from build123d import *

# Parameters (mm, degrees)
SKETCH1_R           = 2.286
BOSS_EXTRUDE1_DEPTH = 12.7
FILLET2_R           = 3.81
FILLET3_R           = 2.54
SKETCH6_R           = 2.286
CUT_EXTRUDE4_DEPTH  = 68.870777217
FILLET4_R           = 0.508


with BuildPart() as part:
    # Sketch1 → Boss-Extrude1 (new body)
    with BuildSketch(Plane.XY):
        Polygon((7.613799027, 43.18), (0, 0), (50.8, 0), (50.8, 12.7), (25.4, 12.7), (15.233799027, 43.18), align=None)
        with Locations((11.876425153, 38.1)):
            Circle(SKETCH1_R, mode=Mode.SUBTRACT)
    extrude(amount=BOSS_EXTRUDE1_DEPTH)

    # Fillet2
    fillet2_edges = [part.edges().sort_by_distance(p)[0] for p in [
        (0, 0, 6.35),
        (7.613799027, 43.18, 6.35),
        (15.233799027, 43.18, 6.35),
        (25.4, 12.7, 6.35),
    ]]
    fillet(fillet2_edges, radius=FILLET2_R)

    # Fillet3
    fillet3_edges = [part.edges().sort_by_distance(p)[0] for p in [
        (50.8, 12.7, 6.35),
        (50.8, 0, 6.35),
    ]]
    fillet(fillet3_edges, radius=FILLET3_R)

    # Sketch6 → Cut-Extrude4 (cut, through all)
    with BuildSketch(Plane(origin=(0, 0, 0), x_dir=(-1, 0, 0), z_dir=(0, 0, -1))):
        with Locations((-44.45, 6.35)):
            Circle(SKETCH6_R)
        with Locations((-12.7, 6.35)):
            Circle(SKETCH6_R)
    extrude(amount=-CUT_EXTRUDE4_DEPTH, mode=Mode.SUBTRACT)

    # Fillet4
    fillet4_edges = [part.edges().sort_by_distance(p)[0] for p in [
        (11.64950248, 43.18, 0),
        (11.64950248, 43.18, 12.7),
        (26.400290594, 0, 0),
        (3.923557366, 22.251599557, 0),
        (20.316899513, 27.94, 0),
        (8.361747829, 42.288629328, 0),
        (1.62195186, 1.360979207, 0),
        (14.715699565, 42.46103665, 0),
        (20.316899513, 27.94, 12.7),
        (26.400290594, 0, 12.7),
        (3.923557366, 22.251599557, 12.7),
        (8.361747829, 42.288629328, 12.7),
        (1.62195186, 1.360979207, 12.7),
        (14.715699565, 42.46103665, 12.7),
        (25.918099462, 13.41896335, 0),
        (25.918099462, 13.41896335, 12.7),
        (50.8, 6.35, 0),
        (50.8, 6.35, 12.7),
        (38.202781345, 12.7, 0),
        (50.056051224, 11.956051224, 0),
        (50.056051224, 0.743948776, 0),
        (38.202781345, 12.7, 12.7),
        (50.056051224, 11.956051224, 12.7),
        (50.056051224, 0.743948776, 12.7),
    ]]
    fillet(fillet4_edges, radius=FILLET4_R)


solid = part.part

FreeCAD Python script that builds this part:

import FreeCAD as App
import Part
import Sketcher
Q = App.Units.Quantity


def edges_at(feature, points):
    """Names of the edges that pass closest to the given points."""
    edges = feature.Shape.Edges
    near = lambda p: min(range(len(edges)), key=lambda i: edges[i].distToShape(Part.Vertex(*p))[0])
    return sorted({f"Edge{near(p) + 1}" for p in points})


def add_polygon(sketch, points):
    """Adds a closed chain of lines whose ends are joined by coincident constraints."""
    first, n = sketch.GeometryCount, len(points)
    for a, b in zip(points, points[1:] + points[:1]):
        sketch.addGeometry(Part.LineSegment(App.Vector(*a, 0), App.Vector(*b, 0)), False)
    for i in range(n):
        sketch.addConstraint(Sketcher.Constraint("Coincident", first + i, 2, first + (i + 1) % n, 1))

doc = App.newDocument("Part")
params = doc.addObject("Spreadsheet::Sheet", "Params")
for row, (alias, value) in enumerate([
    ("sketch1_diameter", "0.18 in"),
    ("sketch1_width", "2 in"),
    ("sketch1_width2", "1 in"),
    ("sketch1_width3", "0.3 in"),
    ("sketch1_height", "0.5 in"),
    ("pad1_length", "0.5 in"),
    ("fillet_radius", "0.15 in"),
    ("fillet2_radius", "0.1 in"),
    ("sketch2_diameter", "0.18 in"),
    ("fillet3_radius", "0.02 in"),
], start=1):
    params.set(f"A{row}", alias)
    params.set(f"B{row}", "=" + value)
    params.setAlias(f"B{row}", alias)

body = doc.addObject("PartDesign::Body", "Body")

sketch1 = body.newObject("Sketcher::SketchObject", "Sketch")
sketch1.AttachmentSupport = (doc.getObject("XY_Plane"), [""])
sketch1.MapMode = "FlatFace"
add_polygon(sketch1, [(7.6, 43.2), (0, 0), (50.8, 0), (50.8, 12.7), (25.4, 12.7), (15.2, 43.2)])
sketch1.addGeometry(Part.Circle(App.Vector(11.9, 38.1, 0), App.Vector(0, 0, 1), 2.3), False)
sketch1.addConstraint([
    Sketcher.Constraint("Horizontal", 1),
    Sketcher.Constraint("Vertical", 2),
    Sketcher.Constraint("Horizontal", 3),
    Sketcher.Constraint("Horizontal", 5),
    Sketcher.Constraint("Coincident", 0, 2, -1, 1),
    Sketcher.Constraint("Diameter", 6, Q("0.18 in")),
    Sketcher.Constraint("DistanceX", 1, 1, 1, 2, Q("2 in")),
    Sketcher.Constraint("DistanceX", 3, 2, 3, 1, Q("1 in")),
    Sketcher.Constraint("DistanceX", 5, 2, 5, 1, Q("0.3 in")),
    Sketcher.Constraint("DistanceY", 2, 1, 2, 2, Q("0.5 in")),
    Sketcher.Constraint("Angle", 0, Q("-100 deg")),
    Sketcher.Constraint("DistanceY", 2, 2, 6, 3, Q("1 in")),
    Sketcher.Constraint("DistanceY", -1, 1, 4, 2, Q("1.7 in")),
    Sketcher.Constraint("DistanceX", -1, 1, 6, 3, Q("11.876425 mm")),
])
sketch1.setExpression("Constraints[11]", "Params.sketch1_diameter")
sketch1.setExpression("Constraints[12]", "Params.sketch1_width")
sketch1.setExpression("Constraints[13]", "Params.sketch1_width2")
sketch1.setExpression("Constraints[14]", "Params.sketch1_width3")
sketch1.setExpression("Constraints[15]", "Params.sketch1_height")
pad1 = body.newObject("PartDesign::Pad", "Pad")
pad1.Profile = sketch1
pad1.setExpression("Length", "Params.pad1_length")
doc.recompute()

fillet = body.newObject("PartDesign::Fillet", "Fillet")
fillet.Base = (pad1, edges_at(pad1, [
    (0, 0, 6.35),
    (7.614, 43.18, 6.35),
    (15.234, 43.18, 6.35),
    (25.4, 12.7, 6.35),
]))
fillet.setExpression("Radius", "Params.fillet_radius")
doc.recompute()

fillet2 = body.newObject("PartDesign::Fillet", "Fillet001")
fillet2.Base = (fillet, edges_at(fillet, [(50.8, 12.7, 6.35), (50.8, 0, 6.35)]))
fillet2.setExpression("Radius", "Params.fillet2_radius")

sketch2 = body.newObject("Sketcher::SketchObject", "Sketch001")
sketch2.AttachmentSupport = (doc.getObject("XY_Plane"), [""])
sketch2.MapMode = "FlatFace"
sketch2.addGeometry([
    Part.Circle(App.Vector(44.5, 6.3, 0), App.Vector(0, 0, 1), 2.3),
    Part.Circle(App.Vector(12.7, 6.3, 0), App.Vector(0, 0, 1), 2.3),
], False)
sketch2.addConstraint([
    Sketcher.Constraint("Equal", 0, 1),
    Sketcher.Constraint("Horizontal", 0, 3, 1, 3),
    Sketcher.Constraint("Diameter", 0, Q("0.18 in")),
    Sketcher.Constraint("DistanceX", -1, 1, 1, 3, Q("0.5 in")),
    Sketcher.Constraint("DistanceX", -1, 1, 0, 3, Q("1.75 in")),
    Sketcher.Constraint("DistanceY", -1, 1, 0, 3, Q("0.25 in")),
])
sketch2.setExpression("Constraints[2]", "Params.sketch2_diameter")
pocket1 = body.newObject("PartDesign::Pocket", "Pocket")
pocket1.Profile = sketch2
pocket1.Type = "ThroughAll"
pocket1.Reversed = True
doc.recompute()

fillet3 = body.newObject("PartDesign::Fillet", "Fillet002")
fillet3.Base = (pocket1, edges_at(pocket1, [
    (11.65, 43.18, 0),
    (11.65, 43.18, 12.7),
    (26.4, 0, 0),
    (3.924, 22.252, 0),
    (20.317, 27.94, 0),
    (8.362, 42.289, 0),
    (1.622, 1.361, 0),
    (14.716, 42.461, 0),
    (20.317, 27.94, 12.7),
    (26.4, 0, 12.7),
    (3.924, 22.252, 12.7),
    (8.362, 42.289, 12.7),
    (1.622, 1.361, 12.7),
    (14.716, 42.461, 12.7),
    (25.918, 13.419, 0),
    (25.918, 13.419, 12.7),
    (50.8, 6.35, 0),
    (50.8, 6.35, 12.7),
    (38.203, 12.7, 0),
    (50.056, 11.956, 0),
    (50.056, 0.744, 0),
    (38.203, 12.7, 12.7),
    (50.056, 11.956, 12.7),
    (50.056, 0.744, 12.7),
]))
fillet3.setExpression("Radius", "Params.fillet3_radius")

doc.recompute()
